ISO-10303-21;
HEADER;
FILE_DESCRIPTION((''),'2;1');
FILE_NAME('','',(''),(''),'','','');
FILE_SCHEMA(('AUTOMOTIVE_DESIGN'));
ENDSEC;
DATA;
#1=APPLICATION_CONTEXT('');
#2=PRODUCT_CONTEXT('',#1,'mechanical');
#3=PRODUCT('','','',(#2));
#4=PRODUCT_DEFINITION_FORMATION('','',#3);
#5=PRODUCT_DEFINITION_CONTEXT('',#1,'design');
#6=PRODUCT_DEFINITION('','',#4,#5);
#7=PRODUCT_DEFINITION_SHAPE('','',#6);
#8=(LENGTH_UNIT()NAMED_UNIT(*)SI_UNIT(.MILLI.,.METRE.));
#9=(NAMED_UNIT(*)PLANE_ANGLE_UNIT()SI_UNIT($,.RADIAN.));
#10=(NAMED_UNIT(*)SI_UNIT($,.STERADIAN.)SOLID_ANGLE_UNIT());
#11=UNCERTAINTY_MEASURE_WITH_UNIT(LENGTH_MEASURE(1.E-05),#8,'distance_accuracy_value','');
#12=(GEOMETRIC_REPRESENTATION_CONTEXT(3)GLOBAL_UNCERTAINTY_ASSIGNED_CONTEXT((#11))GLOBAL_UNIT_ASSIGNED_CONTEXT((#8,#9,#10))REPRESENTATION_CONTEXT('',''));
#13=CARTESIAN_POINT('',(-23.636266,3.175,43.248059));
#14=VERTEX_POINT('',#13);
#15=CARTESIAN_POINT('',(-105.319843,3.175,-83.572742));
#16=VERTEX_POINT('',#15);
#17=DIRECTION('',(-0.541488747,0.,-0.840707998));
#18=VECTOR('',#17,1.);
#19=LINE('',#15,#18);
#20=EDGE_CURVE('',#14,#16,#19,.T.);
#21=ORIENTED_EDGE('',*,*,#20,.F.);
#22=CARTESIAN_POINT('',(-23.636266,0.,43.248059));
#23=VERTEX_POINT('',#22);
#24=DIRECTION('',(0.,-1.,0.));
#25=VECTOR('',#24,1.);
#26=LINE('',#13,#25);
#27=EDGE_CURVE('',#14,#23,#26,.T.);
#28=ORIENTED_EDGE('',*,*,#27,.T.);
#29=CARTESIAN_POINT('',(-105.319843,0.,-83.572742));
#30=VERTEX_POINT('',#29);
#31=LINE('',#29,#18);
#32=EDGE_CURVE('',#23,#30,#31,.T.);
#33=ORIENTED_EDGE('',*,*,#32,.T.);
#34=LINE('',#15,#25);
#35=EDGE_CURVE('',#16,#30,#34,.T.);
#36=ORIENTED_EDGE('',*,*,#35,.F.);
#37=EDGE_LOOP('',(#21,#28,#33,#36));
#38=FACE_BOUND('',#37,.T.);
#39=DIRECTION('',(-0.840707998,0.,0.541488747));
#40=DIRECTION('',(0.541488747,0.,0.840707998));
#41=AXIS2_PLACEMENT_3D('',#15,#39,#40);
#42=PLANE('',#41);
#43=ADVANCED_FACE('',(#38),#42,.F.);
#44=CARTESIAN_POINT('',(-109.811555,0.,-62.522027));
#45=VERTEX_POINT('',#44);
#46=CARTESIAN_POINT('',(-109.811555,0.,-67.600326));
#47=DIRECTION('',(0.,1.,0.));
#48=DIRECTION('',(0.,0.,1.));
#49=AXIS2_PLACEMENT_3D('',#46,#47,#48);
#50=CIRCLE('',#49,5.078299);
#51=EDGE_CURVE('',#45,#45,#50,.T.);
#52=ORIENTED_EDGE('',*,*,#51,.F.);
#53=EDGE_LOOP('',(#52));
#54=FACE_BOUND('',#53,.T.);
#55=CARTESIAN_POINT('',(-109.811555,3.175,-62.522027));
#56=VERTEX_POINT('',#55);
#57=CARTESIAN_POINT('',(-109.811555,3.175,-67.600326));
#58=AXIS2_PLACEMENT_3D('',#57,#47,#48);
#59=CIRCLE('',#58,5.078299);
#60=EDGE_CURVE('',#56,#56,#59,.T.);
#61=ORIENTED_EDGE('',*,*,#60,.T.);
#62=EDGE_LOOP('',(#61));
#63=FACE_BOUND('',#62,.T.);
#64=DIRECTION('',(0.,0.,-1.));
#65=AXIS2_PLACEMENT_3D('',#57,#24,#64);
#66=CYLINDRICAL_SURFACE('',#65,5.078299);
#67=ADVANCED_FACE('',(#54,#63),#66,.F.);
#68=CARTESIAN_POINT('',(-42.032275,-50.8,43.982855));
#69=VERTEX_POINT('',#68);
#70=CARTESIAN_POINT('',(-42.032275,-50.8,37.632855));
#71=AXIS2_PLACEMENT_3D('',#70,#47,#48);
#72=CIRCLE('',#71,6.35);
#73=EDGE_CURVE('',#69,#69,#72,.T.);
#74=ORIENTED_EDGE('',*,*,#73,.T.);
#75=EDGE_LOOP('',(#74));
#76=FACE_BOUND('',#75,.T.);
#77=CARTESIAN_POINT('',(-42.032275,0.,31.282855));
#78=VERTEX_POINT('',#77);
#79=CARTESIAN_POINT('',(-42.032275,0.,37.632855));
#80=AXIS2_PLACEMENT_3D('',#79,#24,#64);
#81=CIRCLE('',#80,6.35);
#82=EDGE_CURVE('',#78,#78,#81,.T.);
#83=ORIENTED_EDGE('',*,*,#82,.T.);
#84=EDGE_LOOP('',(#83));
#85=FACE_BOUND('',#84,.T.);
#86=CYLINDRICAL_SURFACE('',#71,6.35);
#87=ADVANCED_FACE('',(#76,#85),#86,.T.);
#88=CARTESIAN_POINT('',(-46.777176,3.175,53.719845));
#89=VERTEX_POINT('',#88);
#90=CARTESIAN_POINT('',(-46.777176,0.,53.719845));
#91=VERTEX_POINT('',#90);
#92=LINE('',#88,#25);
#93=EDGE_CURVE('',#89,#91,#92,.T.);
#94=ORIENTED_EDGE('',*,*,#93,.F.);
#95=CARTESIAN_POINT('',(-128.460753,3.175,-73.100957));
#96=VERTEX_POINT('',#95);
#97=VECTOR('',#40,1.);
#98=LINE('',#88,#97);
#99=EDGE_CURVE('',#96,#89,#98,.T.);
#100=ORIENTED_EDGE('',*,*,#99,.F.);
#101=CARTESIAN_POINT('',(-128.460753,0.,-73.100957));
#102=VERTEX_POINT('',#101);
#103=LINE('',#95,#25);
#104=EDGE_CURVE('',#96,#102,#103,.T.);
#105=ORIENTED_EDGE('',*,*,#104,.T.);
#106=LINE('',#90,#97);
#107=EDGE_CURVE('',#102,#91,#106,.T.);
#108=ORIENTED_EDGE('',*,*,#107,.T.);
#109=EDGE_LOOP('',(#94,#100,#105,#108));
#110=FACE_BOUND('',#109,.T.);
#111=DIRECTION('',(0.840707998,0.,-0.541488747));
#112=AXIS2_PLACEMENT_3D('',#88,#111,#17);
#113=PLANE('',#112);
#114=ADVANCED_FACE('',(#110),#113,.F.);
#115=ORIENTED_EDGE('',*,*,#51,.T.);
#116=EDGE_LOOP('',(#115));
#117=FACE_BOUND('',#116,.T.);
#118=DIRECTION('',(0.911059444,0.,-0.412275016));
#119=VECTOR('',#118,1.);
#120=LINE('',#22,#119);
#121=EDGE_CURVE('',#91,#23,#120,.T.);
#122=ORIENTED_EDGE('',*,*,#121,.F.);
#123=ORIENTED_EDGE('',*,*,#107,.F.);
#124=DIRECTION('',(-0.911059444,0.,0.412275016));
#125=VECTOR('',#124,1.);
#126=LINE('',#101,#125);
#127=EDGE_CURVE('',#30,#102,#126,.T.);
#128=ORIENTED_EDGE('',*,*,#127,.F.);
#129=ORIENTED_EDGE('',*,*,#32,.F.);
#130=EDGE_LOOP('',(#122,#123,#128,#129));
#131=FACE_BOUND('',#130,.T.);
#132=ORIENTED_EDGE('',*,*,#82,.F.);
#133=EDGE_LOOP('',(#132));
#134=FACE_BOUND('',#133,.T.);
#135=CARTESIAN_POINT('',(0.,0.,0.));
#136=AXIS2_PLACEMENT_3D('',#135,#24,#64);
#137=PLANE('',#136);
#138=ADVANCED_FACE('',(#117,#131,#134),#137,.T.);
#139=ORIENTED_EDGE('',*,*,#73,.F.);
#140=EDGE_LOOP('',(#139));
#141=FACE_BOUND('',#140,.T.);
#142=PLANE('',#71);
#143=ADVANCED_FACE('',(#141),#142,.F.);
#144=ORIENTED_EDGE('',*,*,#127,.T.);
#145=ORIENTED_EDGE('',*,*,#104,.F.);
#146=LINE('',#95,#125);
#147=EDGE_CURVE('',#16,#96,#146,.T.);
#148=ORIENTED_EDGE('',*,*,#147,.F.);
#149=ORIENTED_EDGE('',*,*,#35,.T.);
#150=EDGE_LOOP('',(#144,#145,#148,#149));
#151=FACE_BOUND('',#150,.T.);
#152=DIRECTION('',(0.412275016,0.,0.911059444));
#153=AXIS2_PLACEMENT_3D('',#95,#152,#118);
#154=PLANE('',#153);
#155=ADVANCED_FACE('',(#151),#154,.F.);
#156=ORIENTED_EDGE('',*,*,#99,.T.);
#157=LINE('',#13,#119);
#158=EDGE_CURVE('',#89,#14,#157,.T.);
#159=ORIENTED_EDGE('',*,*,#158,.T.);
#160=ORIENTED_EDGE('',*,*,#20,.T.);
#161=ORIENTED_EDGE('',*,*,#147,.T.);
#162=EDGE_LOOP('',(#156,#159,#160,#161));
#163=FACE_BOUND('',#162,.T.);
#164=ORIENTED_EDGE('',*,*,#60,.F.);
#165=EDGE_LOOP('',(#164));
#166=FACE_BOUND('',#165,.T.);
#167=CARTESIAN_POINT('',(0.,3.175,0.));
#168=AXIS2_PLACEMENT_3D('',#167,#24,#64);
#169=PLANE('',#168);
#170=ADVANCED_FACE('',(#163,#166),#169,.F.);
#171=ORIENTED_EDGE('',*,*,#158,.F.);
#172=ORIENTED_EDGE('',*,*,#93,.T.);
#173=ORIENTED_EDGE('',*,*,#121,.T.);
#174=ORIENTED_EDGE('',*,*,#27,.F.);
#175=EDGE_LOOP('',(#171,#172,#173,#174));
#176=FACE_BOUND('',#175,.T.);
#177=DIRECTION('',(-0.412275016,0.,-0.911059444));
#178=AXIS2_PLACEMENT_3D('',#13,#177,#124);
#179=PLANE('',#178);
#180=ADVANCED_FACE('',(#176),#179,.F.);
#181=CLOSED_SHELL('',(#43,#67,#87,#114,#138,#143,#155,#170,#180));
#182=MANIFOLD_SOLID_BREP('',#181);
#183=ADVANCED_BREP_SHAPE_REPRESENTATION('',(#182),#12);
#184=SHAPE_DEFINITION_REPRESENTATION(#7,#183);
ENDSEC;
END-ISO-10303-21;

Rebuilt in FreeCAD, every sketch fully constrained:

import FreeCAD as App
import Part
import Sketcher
Q = App.Units.Quantity

doc = App.newDocument("Part")
body = doc.addObject("PartDesign::Body", "Body")

sketch1 = doc.addObject("Sketcher::SketchObject", "Sketch")
body.addObject(sketch1)
sketch1.AttachmentSupport = (doc.XZ_Plane, [""])
sketch1.MapMode = "FlatFace"
sketch1.addGeometry(Part.LineSegment(App.Vector(-128, -73, 0), App.Vector(-47, 54, 0)), False)
sketch1.addGeometry(Part.LineSegment(App.Vector(-47, 54, 0), App.Vector(-24, 43, 0)), False)
sketch1.addGeometry(Part.LineSegment(App.Vector(-24, 43, 0), App.Vector(-105, -84, 0)), False)
sketch1.addGeometry(Part.LineSegment(App.Vector(-105, -84, 0), App.Vector(-128, -73, 0)), False)
sketch1.addGeometry(Part.Circle(App.Vector(-110, -68, 0), App.Vector(0, 0, 1), 5), False)
sketch1.addConstraint(Sketcher.Constraint("Coincident", 0, 2, 1, 1))
sketch1.addConstraint(Sketcher.Constraint("Coincident", 1, 2, 2, 1))
sketch1.addConstraint(Sketcher.Constraint("Coincident", 2, 2, 3, 1))
sketch1.addConstraint(Sketcher.Constraint("Coincident", 3, 2, 0, 1))
sketch1.addConstraint(Sketcher.Constraint("Parallel", 0, 2))
sketch1.addConstraint(Sketcher.Constraint("Parallel", 1, 3))
sketch1.addConstraint(Sketcher.Constraint("Distance", 1, Q("1 in")))
sketch1.addConstraint(Sketcher.Constraint("Diameter", 4, 10.156598))
sketch1.addConstraint(Sketcher.Constraint("Distance", 0, 150.85))
sketch1.addConstraint(Sketcher.Constraint("DistanceY", 2, 2, 1, 2, 126.820801))
sketch1.addConstraint(Sketcher.Constraint("DistanceY", -1, 1, 1, 2, 43.248059))
sketch1.addConstraint(Sketcher.Constraint("DistanceX", 4, 3, 0, 2, 63.03438))
sketch1.addConstraint(Sketcher.Constraint("DistanceY", 4, 3, 0, 2, 121.320171))
sketch1.addConstraint(Sketcher.Constraint("DistanceX", 0, 2, 1, 2, 23.14091))
sketch1.addConstraint(Sketcher.Constraint("DistanceX", 4, 3, -1, 1, 109.811555))
pad1 = doc.addObject("PartDesign::Pad", "Pad")
body.addObject(pad1)
pad1.Profile = sketch1
pad1.Length = Q("0.125 in")
pad1.Reversed = True

sketch2 = doc.addObject("Sketcher::SketchObject", "Sketch001")
body.addObject(sketch2)
sketch2.AttachmentSupport = (doc.XZ_Plane, [""])
sketch2.MapMode = "FlatFace"
sketch2.AttachmentOffset = App.Placement(App.Vector(0, 0, -0.125 * 25.4), App.Rotation())
sketch2.addGeometry(Part.Circle(App.Vector(-42, 38, 0), App.Vector(0, 0, 1), 6), False)
sketch2.addConstraint(Sketcher.Constraint("Diameter", 0, Q("0.5 in")))
sketch2.addConstraint(Sketcher.Constraint("DistanceX", 0, 3, -1, 1, 42.032275))
sketch2.addConstraint(Sketcher.Constraint("DistanceY", -1, 1, 0, 3, 37.632855))
pad2 = doc.addObject("PartDesign::Pad", "Pad001")
body.addObject(pad2)
pad2.Profile = sketch2
pad2.Length = Q("2.125 in")

doc.recompute()
